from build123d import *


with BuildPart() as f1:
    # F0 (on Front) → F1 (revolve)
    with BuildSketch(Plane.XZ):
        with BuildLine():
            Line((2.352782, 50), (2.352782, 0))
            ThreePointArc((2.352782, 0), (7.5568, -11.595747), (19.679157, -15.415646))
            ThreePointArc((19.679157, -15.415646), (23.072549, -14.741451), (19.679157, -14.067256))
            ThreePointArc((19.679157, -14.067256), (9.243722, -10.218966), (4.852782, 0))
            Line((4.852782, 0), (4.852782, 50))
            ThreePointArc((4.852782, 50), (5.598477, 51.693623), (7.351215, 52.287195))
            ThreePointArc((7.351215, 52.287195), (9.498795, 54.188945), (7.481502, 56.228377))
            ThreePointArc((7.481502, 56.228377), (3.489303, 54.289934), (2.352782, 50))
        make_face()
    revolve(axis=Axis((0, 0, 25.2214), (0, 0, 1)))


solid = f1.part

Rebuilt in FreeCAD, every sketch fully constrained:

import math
import FreeCAD as App
import Part
import Sketcher

V = App.Vector
Q = App.Units.Quantity

doc = App.newDocument("Part")
body = doc.addObject("PartDesign::Body", "Body")

# Sketch on XZ plane
sketch1 = doc.addObject("Sketcher::SketchObject", "Sketch")
body.addObject(sketch1)
sketch1.AttachmentSupport = (doc.XZ_Plane, [""])
sketch1.MapMode = "FlatFace"
sketch1.addGeometry([
    Part.LineSegment(V(2.352782, 50, 0), V(2.352782, 0, 0)),  # 0
    Part.ArcOfCircle(Part.Circle(V(17.873784, 0, 0), V(0, 0, 1), 15.521002), math.radians(180), math.radians(276.679654)),  # 1
    Part.ArcOfCircle(Part.Circle(V(21.308879, -14.741451, 0), V(0, 0, 1), 1.76367), math.radians(-157.525749), math.radians(157.525749)),  # 2
    Part.ArcOfCircle(Part.Circle(V(18.939472, 0, 0), V(0, 0, 1), 14.08669), math.radians(179.999999), math.radians(273.009959)),  # 3
    Part.LineSegment(V(4.852782, 0, 0), V(4.852782, 50, 0)),  # 4
    Part.ArcOfCircle(Part.Circle(V(7.148906, 50.000001, 0), V(0, 0, 1), 2.296124), math.radians(84.945174), math.radians(180.000027)),  # 5
    Part.ArcOfCircle(Part.Circle(V(7.5252, 54.254188, 0), V(0, 0, 1), 1.974673), math.radians(-95.0548), math.radians(91.268029)),  # 6
    Part.ArcOfCircle(Part.Circle(V(7.599323, 50.905562, 0), V(0, 0, 1), 5.324119), math.radians(91.268043), math.radians(189.792866)),  # 7
], False)
sketch1.addConstraint([
    Sketcher.Constraint("Tangent", 0, 2, 1, 1),
    Sketcher.Constraint("Coincident", 1, 2, 2, 1),
    Sketcher.Constraint("Coincident", 2, 2, 3, 2),
    Sketcher.Constraint("Tangent", 3, 1, 4, 1),
    Sketcher.Constraint("Tangent", 4, 2, 5, 2),
    Sketcher.Constraint("Tangent", 5, 1, 6, 1),
    Sketcher.Constraint("Tangent", 6, 2, 7, 1),
    Sketcher.Constraint("Coincident", 7, 2, 0, 1),
    Sketcher.Constraint("Vertical", 0),
    Sketcher.Constraint("Vertical", 4),
    Sketcher.Constraint("PointOnObject", 1, 3, -1),
    Sketcher.Constraint("PointOnObject", 3, 3, -1),
    Sketcher.Constraint("Horizontal", 4, 2, 7, 2),
    Sketcher.Constraint("Vertical", 1, 2, 2, 2),
    Sketcher.Constraint("DistanceY", 0, 2, 0, 1, Q("50 mm")),
    Sketcher.Constraint("DistanceX", 0, 2, 3, 1, Q("2.5 mm")),
    Sketcher.Constraint("Radius", 2, Q("1.76367 mm")),
    Sketcher.Constraint("Radius", 3, Q("14.08669 mm")),
    Sketcher.Constraint("Radius", 7, Q("5.324119 mm")),
    Sketcher.Constraint("Radius", 1, Q("15.521002 mm")),
    Sketcher.Constraint("Radius", 5, Q("2.296124 mm")),
    Sketcher.Constraint("Radius", 6, Q("1.974673 mm")),
    Sketcher.Constraint("DistanceX", -1, 1, 6, 3, Q("7.5252 mm")),
    Sketcher.Constraint("DistanceX", -1, 1, 6, 2, Q("7.481502 mm")),
    Sketcher.Constraint("DistanceX", -1, 1, 2, 3, Q("21.308879 mm")),
])
revolution = doc.addObject("PartDesign::Revolution", "Revolution")
body.addObject(revolution)
revolution.Profile = sketch1
revolution.ReferenceAxis = (sketch1, ["V_Axis"])
revolution.Angle = 360

doc.recompute()
